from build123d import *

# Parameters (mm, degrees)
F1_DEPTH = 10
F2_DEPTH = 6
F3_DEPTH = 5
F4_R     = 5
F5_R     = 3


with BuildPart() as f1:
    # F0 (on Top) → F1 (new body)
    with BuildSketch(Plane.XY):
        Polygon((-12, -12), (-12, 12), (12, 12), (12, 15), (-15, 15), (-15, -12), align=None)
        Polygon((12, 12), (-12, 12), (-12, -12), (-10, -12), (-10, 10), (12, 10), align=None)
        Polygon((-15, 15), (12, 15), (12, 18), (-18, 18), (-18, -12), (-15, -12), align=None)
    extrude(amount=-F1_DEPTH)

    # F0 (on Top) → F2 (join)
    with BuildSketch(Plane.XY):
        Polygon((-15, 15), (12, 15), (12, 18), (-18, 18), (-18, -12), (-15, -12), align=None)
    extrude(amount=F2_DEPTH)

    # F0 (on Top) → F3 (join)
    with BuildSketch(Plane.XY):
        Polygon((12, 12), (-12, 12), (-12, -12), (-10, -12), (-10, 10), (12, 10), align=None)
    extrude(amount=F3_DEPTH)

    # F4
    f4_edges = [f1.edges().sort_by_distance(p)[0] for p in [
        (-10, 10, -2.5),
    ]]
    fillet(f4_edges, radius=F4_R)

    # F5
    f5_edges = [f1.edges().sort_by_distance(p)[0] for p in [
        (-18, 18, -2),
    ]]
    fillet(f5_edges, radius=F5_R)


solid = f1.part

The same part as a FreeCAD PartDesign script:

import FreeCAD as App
import Part
import Sketcher
from FreeCAD import Vector
Q = App.Units.Quantity


def edges_at(feature, points):
    """Names of the edges that pass closest to the given points."""
    edges = feature.Shape.Edges
    near = lambda p: min(range(len(edges)), key=lambda i: edges[i].distToShape(Part.Vertex(*p))[0])
    return sorted({f"Edge{near(p) + 1}" for p in points})


def add_polygon(sketch, points):
    """Adds a closed chain of lines whose ends are joined by coincident constraints."""
    first, n = sketch.GeometryCount, len(points)
    for a, b in zip(points, points[1:] + points[:1]):
        sketch.addGeometry(Part.LineSegment(App.Vector(*a, 0), App.Vector(*b, 0)), False)
    for i in range(n):
        sketch.addConstraint(Sketcher.Constraint("Coincident", first + i, 2, first + (i + 1) % n, 1))

doc = App.newDocument("Part")
body = doc.addObject("PartDesign::Body", "Body")

# Sketch on XY plane
sketch1 = body.newObject("Sketcher::SketchObject", "Sketch")
sketch1.AttachmentSupport = (doc.getObject("XY_Plane"), [""])
sketch1.MapMode = "FlatFace"
add_polygon(sketch1, [(-10, -12), (-10, 10), (12, 10), (12, 18), (-18, 18), (-18, -12)])  # lines 0-5
sketch1.addConstraint([
    Sketcher.Constraint("Vertical", 0),
    Sketcher.Constraint("Horizontal", 1),
    Sketcher.Constraint("Vertical", 2),
    Sketcher.Constraint("Horizontal", 3),
    Sketcher.Constraint("Vertical", 4),
    Sketcher.Constraint("Horizontal", 5),
    Sketcher.Constraint("Equal", 1, 0),
    Sketcher.Constraint("Equal", 5, 2),
    Sketcher.Constraint("DistanceX", 1, 1, 1, 2, Q("22 mm")),
    Sketcher.Constraint("DistanceX", 3, 2, 3, 1, Q("30 mm")),
    Sketcher.Constraint("DistanceX", 0, 2, -1, 1, Q("10 mm")),
    Sketcher.Constraint("DistanceY", -1, 1, 0, 2, Q("10 mm")),
])
pad1 = body.newObject("PartDesign::Pad", "Pad")
pad1.Profile = sketch1
pad1.Length = 10
pad1.Reversed = True

# Sketch on XY plane
sketch2 = body.newObject("Sketcher::SketchObject", "Sketch001")
sketch2.AttachmentSupport = (doc.getObject("XY_Plane"), [""])
sketch2.MapMode = "FlatFace"
add_polygon(sketch2, [(-15, 15), (12, 15), (12, 18), (-18, 18), (-18, -12), (-15, -12)])  # lines 0-5
sketch2.addConstraint([
    Sketcher.Constraint("Horizontal", 0),
    Sketcher.Constraint("Vertical", 1),
    Sketcher.Constraint("Horizontal", 2),
    Sketcher.Constraint("Vertical", 3),
    Sketcher.Constraint("Horizontal", 4),
    Sketcher.Constraint("Vertical", 5),
    Sketcher.Constraint("Equal", 4, 1),
    Sketcher.Constraint("Equal", 2, 3),
    Sketcher.Constraint("DistanceX", 0, 1, 0, 2, Q("27 mm")),
    Sketcher.Constraint("DistanceX", 2, 2, 2, 1, Q("30 mm")),
    Sketcher.Constraint("DistanceX", -1, 1, 0, 2, Q("12 mm")),
    Sketcher.Constraint("DistanceY", -1, 1, 0, 2, Q("15 mm")),
])
pad2 = body.newObject("PartDesign::Pad", "Pad001")
pad2.Profile = sketch2
pad2.Length = 6

# Sketch on XY plane
sketch3 = body.newObject("Sketcher::SketchObject", "Sketch002")
sketch3.AttachmentSupport = (doc.getObject("XY_Plane"), [""])
sketch3.MapMode = "FlatFace"
add_polygon(sketch3, [(12, 12), (-12, 12), (-12, -12), (-10, -12), (-10, 10), (12, 10)])  # lines 0-5
sketch3.addConstraint([
    Sketcher.Constraint("Horizontal", 0),
    Sketcher.Constraint("Vertical", 1),
    Sketcher.Constraint("Horizontal", 2),
    Sketcher.Constraint("Vertical", 3),
    Sketcher.Constraint("Horizontal", 4),
    Sketcher.Constraint("Vertical", 5),
    Sketcher.Constraint("Symmetric", 1, 2, 5, 2, -1, 1),
    Sketcher.Constraint("Equal", 0, 1),
    Sketcher.Constraint("Equal", 4, 3),
    Sketcher.Constraint("DistanceX", 0, 2, 0, 1, Q("24 mm")),
    Sketcher.Constraint("DistanceX", 2, 1, 2, 2, Q("2 mm")),
])
pad3 = body.newObject("PartDesign::Pad", "Pad002")
pad3.Profile = sketch3
pad3.Length = 5
doc.recompute()

fillet = body.newObject("PartDesign::Fillet", "Fillet")
fillet.Base = (pad3, edges_at(pad3, [(-10, 10, -2.5)]))
fillet.Radius = 5
doc.recompute()

fillet2 = body.newObject("PartDesign::Fillet", "Fillet001")
fillet2.Base = (fillet, edges_at(fillet, [(-18, 18, -2)]))
fillet2.Radius = 3

doc.recompute()
